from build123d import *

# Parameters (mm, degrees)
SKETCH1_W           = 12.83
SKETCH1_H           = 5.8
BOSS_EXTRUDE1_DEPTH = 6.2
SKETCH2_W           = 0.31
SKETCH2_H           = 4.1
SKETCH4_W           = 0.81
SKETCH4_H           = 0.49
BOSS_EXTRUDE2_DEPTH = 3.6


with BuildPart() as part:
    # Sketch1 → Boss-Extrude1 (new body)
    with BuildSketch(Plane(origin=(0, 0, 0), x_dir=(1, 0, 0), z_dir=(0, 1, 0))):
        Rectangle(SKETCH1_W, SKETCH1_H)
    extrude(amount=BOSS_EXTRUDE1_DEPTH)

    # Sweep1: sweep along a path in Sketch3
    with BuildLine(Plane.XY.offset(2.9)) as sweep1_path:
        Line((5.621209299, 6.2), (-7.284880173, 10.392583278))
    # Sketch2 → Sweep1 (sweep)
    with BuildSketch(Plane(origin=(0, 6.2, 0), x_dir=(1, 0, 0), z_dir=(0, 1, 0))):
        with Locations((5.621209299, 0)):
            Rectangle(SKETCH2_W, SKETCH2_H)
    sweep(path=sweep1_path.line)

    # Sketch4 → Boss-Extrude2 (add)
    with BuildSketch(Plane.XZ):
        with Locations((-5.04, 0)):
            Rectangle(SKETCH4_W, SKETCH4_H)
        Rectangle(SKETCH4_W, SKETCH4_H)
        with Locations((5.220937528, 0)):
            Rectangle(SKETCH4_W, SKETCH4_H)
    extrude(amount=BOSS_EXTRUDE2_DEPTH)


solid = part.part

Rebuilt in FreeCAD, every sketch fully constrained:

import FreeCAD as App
import Part
import Sketcher
from FreeCAD import Vector
Q = App.Units.Quantity


def add_polygon(sketch, points):
    """Adds a closed chain of lines whose ends are joined by coincident constraints."""
    first, n = sketch.GeometryCount, len(points)
    for a, b in zip(points, points[1:] + points[:1]):
        sketch.addGeometry(Part.LineSegment(App.Vector(*a, 0), App.Vector(*b, 0)), False)
    for i in range(n):
        sketch.addConstraint(Sketcher.Constraint("Coincident", first + i, 2, first + (i + 1) % n, 1))

doc = App.newDocument("Part")
body = doc.addObject("PartDesign::Body", "Body")

sketch1 = doc.addObject("Sketcher::SketchObject", "Sketch")
body.addObject(sketch1)
sketch1.AttachmentSupport = (doc.XZ_Plane, [""])
sketch1.MapMode = "FlatFace"
add_polygon(sketch1, [(-6.415, -2.9), (-6.415, 2.9), (6.415, 2.9), (6.415, -2.9)])
sketch1.addConstraint(Sketcher.Constraint("Vertical", 0))
sketch1.addConstraint(Sketcher.Constraint("Horizontal", 1))
sketch1.addConstraint(Sketcher.Constraint("Vertical", 2))
sketch1.addConstraint(Sketcher.Constraint("Horizontal", 3))
sketch1.addConstraint(Sketcher.Constraint("Symmetric", 0, 2, 2, 2, -1, 1))
sketch1.addConstraint(Sketcher.Constraint("DistanceY", 0, 1, 0, 2, Q("5.8 mm")))
sketch1.addConstraint(Sketcher.Constraint("DistanceX", 1, 1, 1, 2, Q("12.83 mm")))
pad1 = doc.addObject("PartDesign::Pad", "Pad")
body.addObject(pad1)
pad1.Profile = sketch1
pad1.Length = 6.2
pad1.Reversed = True

sketch2 = doc.addObject("Sketcher::SketchObject", "Sketch001")
body.addObject(sketch2)
sketch2.AttachmentSupport = (doc.XZ_Plane, [""])
sketch2.MapMode = "FlatFace"
sketch2.AttachmentOffset = App.Placement(Vector(0, 0, -6.2), App.Rotation())
add_polygon(sketch2, [(5.466209, -2.05), (5.466209, 2.05), (5.776209, 2.05), (5.776209, -2.05)])
sketch2.addConstraint(Sketcher.Constraint("Vertical", 0))
sketch2.addConstraint(Sketcher.Constraint("Horizontal", 1))
sketch2.addConstraint(Sketcher.Constraint("Vertical", 2))
sketch2.addConstraint(Sketcher.Constraint("Horizontal", 3))
sketch2.addConstraint(Sketcher.Constraint("DistanceY", 0, 1, 0, 2, Q("4.1 mm")))
sketch2.addConstraint(Sketcher.Constraint("DistanceX", 1, 1, 1, 2, Q("0.31 mm")))
sketch2.addConstraint(Sketcher.Constraint("DistanceY", -1, 1, 0, 2, Q("2.05 mm")))
sketch2.addConstraint(Sketcher.Constraint("DistanceX", -1, 1, 0, 2, Q("5.466209 mm")))

sketch3 = doc.addObject("Sketcher::SketchObject", "Sketch002")
body.addObject(sketch3)
sketch3.Placement = App.Placement(Vector(2.358411, 7.25993, 0), App.Rotation(Vector(-0.951075127, 0.308959711, 0), Vector(0, 0, 1), Vector(0.308959711, 0.951075127, 0), "ZXY"))
sketch3.addGeometry(Part.LineSegment(Vector(-3.430642, 2.9, 0), Vector(10.139358, 2.9, 0)), False)
sketch3.addConstraint(Sketcher.Constraint("Horizontal", 0))
sketch3.addConstraint(Sketcher.Constraint("DistanceX", 0, 1, 0, 2, Q("13.57 mm")))
sketch3.addConstraint(Sketcher.Constraint("DistanceY", -1, 1, 0, 1, Q("2.9 mm")))
sketch3.addConstraint(Sketcher.Constraint("DistanceX", 0, 1, -1, 1, Q("3.430642 mm")))
doc.recompute()

additivepipe = doc.addObject("PartDesign::AdditivePipe", "AdditivePipe")
body.addObject(additivepipe)
additivepipe.Profile = sketch2
additivepipe.Spine = (sketch3, ["Edge1"])

sketch4 = doc.addObject("Sketcher::SketchObject", "Sketch003")
body.addObject(sketch4)
sketch4.AttachmentSupport = (doc.XZ_Plane, [""])
sketch4.MapMode = "FlatFace"
add_polygon(sketch4, [(-5.445, 0.245), (-5.445, -0.245), (-4.635, -0.245), (-4.635, 0.245)])
add_polygon(sketch4, [(-0.405, 0.245), (-0.405, -0.245), (0.405, -0.245), (0.405, 0.245)])
add_polygon(sketch4, [(4.815938, 0.245), (4.815938, -0.245), (5.625938, -0.245), (5.625938, 0.245)])
sketch4.addConstraint(Sketcher.Constraint("Vertical", 0))
sketch4.addConstraint(Sketcher.Constraint("Horizontal", 1))
sketch4.addConstraint(Sketcher.Constraint("Vertical", 2))
sketch4.addConstraint(Sketcher.Constraint("Horizontal", 3))
sketch4.addConstraint(Sketcher.Constraint("Vertical", 4))
sketch4.addConstraint(Sketcher.Constraint("Horizontal", 5))
sketch4.addConstraint(Sketcher.Constraint("Vertical", 6))
sketch4.addConstraint(Sketcher.Constraint("Horizontal", 7))
sketch4.addConstraint(Sketcher.Constraint("Vertical", 8))
sketch4.addConstraint(Sketcher.Constraint("Horizontal", 9))
sketch4.addConstraint(Sketcher.Constraint("Vertical", 10))
sketch4.addConstraint(Sketcher.Constraint("Horizontal", 11))
sketch4.addConstraint(Sketcher.Constraint("Symmetric", 4, 2, 6, 2, -1, 1))
sketch4.addConstraint(Sketcher.Constraint("Horizontal", 1, 2, 4, 2))
sketch4.addConstraint(Sketcher.Constraint("Horizontal", 3, 2, 6, 2))
sketch4.addConstraint(Sketcher.Constraint("Horizontal", 5, 2, 8, 2))
sketch4.addConstraint(Sketcher.Constraint("Horizontal", 7, 2, 10, 2))
sketch4.addConstraint(Sketcher.Constraint("Equal", 3, 5))
sketch4.addConstraint(Sketcher.Constraint("Equal", 7, 9))
sketch4.addConstraint(Sketcher.Constraint("DistanceX", 1, 1, 1, 2, Q("0.81 mm")))
sketch4.addConstraint(Sketcher.Constraint("DistanceY", 0, 2, 0, 1, Q("0.49 mm")))
sketch4.addConstraint(Sketcher.Constraint("DistanceX", 1, 2, 4, 2, Q("4.23 mm")))
sketch4.addConstraint(Sketcher.Constraint("DistanceX", -1, 1, 8, 2, Q("4.815938 mm")))
pad2 = doc.addObject("PartDesign::Pad", "Pad001")
body.addObject(pad2)
pad2.Profile = sketch4
pad2.Length = 3.6

doc.recompute()
